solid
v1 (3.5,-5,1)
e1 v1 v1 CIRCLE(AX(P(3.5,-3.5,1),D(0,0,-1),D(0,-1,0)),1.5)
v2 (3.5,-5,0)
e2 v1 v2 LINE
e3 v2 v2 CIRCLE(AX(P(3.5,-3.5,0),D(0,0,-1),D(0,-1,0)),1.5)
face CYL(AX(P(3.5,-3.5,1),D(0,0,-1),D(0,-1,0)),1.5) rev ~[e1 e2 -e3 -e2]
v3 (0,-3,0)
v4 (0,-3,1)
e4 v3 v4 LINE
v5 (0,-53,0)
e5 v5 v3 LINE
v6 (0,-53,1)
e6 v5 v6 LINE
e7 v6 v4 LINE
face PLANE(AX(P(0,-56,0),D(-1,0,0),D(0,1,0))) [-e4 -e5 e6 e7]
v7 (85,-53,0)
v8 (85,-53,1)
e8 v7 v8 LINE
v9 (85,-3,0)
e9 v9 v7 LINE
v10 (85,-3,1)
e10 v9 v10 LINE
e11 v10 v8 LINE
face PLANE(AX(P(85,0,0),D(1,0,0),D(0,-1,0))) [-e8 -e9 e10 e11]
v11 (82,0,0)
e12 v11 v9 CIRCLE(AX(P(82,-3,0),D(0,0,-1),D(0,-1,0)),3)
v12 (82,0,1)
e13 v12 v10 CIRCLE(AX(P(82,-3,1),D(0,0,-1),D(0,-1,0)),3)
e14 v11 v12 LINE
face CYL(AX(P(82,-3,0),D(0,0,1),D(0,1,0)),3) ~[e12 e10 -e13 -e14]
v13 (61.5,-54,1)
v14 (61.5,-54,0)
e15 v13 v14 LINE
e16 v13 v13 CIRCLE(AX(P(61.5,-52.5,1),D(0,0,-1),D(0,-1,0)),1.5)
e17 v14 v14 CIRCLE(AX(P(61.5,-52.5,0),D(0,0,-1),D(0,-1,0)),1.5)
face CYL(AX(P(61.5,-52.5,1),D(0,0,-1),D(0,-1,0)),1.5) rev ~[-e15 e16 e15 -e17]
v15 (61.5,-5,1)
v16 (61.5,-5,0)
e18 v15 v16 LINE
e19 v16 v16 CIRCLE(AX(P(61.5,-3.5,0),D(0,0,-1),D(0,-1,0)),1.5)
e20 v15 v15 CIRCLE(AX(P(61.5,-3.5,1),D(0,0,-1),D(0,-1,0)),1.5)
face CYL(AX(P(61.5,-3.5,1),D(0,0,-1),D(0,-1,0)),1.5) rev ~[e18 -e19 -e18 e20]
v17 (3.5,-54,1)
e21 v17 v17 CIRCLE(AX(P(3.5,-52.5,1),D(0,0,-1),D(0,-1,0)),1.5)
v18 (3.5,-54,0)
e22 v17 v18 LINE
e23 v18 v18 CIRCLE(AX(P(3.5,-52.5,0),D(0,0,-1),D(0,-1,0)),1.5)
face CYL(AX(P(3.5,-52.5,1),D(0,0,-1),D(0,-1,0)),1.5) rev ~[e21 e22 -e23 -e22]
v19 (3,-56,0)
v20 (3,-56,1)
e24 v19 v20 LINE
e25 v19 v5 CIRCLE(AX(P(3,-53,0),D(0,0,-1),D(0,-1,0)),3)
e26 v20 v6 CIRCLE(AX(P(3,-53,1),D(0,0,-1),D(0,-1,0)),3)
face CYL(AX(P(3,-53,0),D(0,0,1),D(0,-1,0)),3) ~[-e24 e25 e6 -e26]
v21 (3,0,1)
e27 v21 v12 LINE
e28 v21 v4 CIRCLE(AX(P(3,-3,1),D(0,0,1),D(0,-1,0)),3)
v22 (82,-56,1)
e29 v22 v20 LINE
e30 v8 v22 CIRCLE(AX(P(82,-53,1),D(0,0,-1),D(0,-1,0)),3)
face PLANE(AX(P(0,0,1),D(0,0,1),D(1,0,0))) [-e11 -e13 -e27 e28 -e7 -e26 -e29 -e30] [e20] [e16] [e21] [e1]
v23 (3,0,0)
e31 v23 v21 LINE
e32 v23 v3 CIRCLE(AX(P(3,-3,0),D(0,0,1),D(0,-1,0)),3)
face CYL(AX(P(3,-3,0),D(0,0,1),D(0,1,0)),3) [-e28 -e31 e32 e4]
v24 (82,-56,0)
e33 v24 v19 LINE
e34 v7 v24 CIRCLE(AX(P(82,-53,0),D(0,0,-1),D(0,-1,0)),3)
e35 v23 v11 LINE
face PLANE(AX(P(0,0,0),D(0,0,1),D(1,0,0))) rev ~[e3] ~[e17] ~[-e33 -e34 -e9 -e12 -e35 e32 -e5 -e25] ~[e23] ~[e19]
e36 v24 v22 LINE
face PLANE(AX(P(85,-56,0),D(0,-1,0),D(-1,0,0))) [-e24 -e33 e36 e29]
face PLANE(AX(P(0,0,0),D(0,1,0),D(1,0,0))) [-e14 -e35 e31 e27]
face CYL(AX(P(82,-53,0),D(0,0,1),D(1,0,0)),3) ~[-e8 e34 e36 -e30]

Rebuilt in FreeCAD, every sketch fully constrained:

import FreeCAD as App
import Part
import Sketcher

V = App.Vector
Q = App.Units.Quantity


def edges_at(feature, points):
    """Names of the edges that pass closest to the given points."""
    edges = feature.Shape.Edges
    near = lambda p: min(range(len(edges)), key=lambda i: edges[i].distToShape(Part.Vertex(*p))[0])
    return sorted({f"Edge{near(p) + 1}" for p in points})


def add_polygon(sketch, points):
    """Adds a closed chain of lines whose ends are joined by coincident constraints."""
    first, n = sketch.GeometryCount, len(points)
    for a, b in zip(points, points[1:] + points[:1]):
        sketch.addGeometry(Part.LineSegment(App.Vector(*a, 0), App.Vector(*b, 0)), False)
    for i in range(n):
        sketch.addConstraint(Sketcher.Constraint("Coincident", first + i, 2, first + (i + 1) % n, 1))

doc = App.newDocument("Part")
params = doc.addObject("Spreadsheet::Sheet", "Params")
for row, (alias, value) in enumerate([
    ("sketch1_width", "85 mm"),
    ("sketch1_height", "56 mm"),
    ("pad1_length", "1 mm"),
    ("fillet_radius", "3 mm"),
    ("sketch2_diameter", "3 mm"),
    ("hole_diameter", "3 mm"),
], start=1):
    params.set(f"A{row}", alias)
    params.set(f"B{row}", "=" + value)
    params.setAlias(f"B{row}", alias)

body = doc.addObject("PartDesign::Body", "Body")

# Sketch on XY plane
sketch1 = doc.addObject("Sketcher::SketchObject", "Sketch")
body.addObject(sketch1)
sketch1.AttachmentSupport = (doc.XY_Plane, [""])
sketch1.MapMode = "FlatFace"
add_polygon(sketch1, [(85, 0), (0, 0), (0, -56), (85, -56)])  # lines 0-3
sketch1.addConstraint(Sketcher.Constraint("Horizontal", 0))
sketch1.addConstraint(Sketcher.Constraint("Vertical", 1))
sketch1.addConstraint(Sketcher.Constraint("Horizontal", 2))
sketch1.addConstraint(Sketcher.Constraint("Vertical", 3))
sketch1.addConstraint(Sketcher.Constraint("Coincident", 0, 2, -1, 1))
sketch1.addConstraint(Sketcher.Constraint("DistanceX", 0, 2, 0, 1, Q("85 mm")))
sketch1.addConstraint(Sketcher.Constraint("DistanceY", 1, 2, 1, 1, Q("56 mm")))
sketch1.setExpression("Constraints[9]", "Params.sketch1_width")
sketch1.setExpression("Constraints[10]", "Params.sketch1_height")
pad1 = doc.addObject("PartDesign::Pad", "Pad")
body.addObject(pad1)
pad1.Profile = sketch1
pad1.setExpression("Length", "Params.pad1_length")
doc.recompute()

fillet = doc.addObject("PartDesign::Fillet", "Fillet")
body.addObject(fillet)
fillet.Base = (pad1, edges_at(pad1, [
    (0, 0, 0.5),
    (85, 0, 0.5),
    (85, -56, 0.5),
    (0, -56, 0.5),
]))
fillet.setExpression("Radius", "Params.fillet_radius")

# Sketch on XY plane
sketch2 = doc.addObject("Sketcher::SketchObject", "Sketch001")
body.addObject(sketch2)
sketch2.AttachmentSupport = (doc.XY_Plane, [""])
sketch2.MapMode = "FlatFace"
sketch2.AttachmentOffset = App.Placement(V(0, 0, 1), App.Rotation())
sketch2.addGeometry(Part.Circle(V(61.5, -52.5, 0), V(0, 0, 1), 1.5), False)
sketch2.addGeometry(Part.Circle(V(3.5, -52.5, 0), V(0, 0, 1), 1.5), False)
sketch2.addGeometry(Part.Circle(V(3.5, -3.5, 0), V(0, 0, 1), 1.5), False)
sketch2.addGeometry(Part.Circle(V(61.5, -3.5, 0), V(0, 0, 1), 1.5), False)
sketch2.addConstraint(Sketcher.Constraint("Equal", 0, 1))
sketch2.addConstraint(Sketcher.Constraint("Equal", 1, 2))
sketch2.addConstraint(Sketcher.Constraint("Equal", 2, 3))
sketch2.addConstraint(Sketcher.Constraint("Horizontal", 0, 3, 1, 3))
sketch2.addConstraint(Sketcher.Constraint("Horizontal", 2, 3, 3, 3))
sketch2.addConstraint(Sketcher.Constraint("Vertical", 1, 3, 2, 3))
sketch2.addConstraint(Sketcher.Constraint("Vertical", 0, 3, 3, 3))
sketch2.addConstraint(Sketcher.Constraint("Diameter", 0, Q("3 mm")))
sketch2.addConstraint(Sketcher.Constraint("DistanceX", 1, 3, 0, 3, Q("58 mm")))
sketch2.addConstraint(Sketcher.Constraint("DistanceY", 1, 3, 2, 3, Q("49 mm")))
sketch2.addConstraint(Sketcher.Constraint("DistanceX", -1, 1, 0, 3, Q("61.5 mm")))
sketch2.addConstraint(Sketcher.Constraint("DistanceY", 0, 3, -1, 1, Q("52.5 mm")))
sketch2.setExpression("Constraints[7]", "Params.sketch2_diameter")
doc.recompute()
hole = doc.addObject("PartDesign::Hole", "Hole")
body.addObject(hole)
hole.Profile = sketch2
hole.ThreadType = "None"
hole.setExpression("Diameter", "Params.hole_diameter")
hole.DepthType = "ThroughAll"

doc.recompute()
